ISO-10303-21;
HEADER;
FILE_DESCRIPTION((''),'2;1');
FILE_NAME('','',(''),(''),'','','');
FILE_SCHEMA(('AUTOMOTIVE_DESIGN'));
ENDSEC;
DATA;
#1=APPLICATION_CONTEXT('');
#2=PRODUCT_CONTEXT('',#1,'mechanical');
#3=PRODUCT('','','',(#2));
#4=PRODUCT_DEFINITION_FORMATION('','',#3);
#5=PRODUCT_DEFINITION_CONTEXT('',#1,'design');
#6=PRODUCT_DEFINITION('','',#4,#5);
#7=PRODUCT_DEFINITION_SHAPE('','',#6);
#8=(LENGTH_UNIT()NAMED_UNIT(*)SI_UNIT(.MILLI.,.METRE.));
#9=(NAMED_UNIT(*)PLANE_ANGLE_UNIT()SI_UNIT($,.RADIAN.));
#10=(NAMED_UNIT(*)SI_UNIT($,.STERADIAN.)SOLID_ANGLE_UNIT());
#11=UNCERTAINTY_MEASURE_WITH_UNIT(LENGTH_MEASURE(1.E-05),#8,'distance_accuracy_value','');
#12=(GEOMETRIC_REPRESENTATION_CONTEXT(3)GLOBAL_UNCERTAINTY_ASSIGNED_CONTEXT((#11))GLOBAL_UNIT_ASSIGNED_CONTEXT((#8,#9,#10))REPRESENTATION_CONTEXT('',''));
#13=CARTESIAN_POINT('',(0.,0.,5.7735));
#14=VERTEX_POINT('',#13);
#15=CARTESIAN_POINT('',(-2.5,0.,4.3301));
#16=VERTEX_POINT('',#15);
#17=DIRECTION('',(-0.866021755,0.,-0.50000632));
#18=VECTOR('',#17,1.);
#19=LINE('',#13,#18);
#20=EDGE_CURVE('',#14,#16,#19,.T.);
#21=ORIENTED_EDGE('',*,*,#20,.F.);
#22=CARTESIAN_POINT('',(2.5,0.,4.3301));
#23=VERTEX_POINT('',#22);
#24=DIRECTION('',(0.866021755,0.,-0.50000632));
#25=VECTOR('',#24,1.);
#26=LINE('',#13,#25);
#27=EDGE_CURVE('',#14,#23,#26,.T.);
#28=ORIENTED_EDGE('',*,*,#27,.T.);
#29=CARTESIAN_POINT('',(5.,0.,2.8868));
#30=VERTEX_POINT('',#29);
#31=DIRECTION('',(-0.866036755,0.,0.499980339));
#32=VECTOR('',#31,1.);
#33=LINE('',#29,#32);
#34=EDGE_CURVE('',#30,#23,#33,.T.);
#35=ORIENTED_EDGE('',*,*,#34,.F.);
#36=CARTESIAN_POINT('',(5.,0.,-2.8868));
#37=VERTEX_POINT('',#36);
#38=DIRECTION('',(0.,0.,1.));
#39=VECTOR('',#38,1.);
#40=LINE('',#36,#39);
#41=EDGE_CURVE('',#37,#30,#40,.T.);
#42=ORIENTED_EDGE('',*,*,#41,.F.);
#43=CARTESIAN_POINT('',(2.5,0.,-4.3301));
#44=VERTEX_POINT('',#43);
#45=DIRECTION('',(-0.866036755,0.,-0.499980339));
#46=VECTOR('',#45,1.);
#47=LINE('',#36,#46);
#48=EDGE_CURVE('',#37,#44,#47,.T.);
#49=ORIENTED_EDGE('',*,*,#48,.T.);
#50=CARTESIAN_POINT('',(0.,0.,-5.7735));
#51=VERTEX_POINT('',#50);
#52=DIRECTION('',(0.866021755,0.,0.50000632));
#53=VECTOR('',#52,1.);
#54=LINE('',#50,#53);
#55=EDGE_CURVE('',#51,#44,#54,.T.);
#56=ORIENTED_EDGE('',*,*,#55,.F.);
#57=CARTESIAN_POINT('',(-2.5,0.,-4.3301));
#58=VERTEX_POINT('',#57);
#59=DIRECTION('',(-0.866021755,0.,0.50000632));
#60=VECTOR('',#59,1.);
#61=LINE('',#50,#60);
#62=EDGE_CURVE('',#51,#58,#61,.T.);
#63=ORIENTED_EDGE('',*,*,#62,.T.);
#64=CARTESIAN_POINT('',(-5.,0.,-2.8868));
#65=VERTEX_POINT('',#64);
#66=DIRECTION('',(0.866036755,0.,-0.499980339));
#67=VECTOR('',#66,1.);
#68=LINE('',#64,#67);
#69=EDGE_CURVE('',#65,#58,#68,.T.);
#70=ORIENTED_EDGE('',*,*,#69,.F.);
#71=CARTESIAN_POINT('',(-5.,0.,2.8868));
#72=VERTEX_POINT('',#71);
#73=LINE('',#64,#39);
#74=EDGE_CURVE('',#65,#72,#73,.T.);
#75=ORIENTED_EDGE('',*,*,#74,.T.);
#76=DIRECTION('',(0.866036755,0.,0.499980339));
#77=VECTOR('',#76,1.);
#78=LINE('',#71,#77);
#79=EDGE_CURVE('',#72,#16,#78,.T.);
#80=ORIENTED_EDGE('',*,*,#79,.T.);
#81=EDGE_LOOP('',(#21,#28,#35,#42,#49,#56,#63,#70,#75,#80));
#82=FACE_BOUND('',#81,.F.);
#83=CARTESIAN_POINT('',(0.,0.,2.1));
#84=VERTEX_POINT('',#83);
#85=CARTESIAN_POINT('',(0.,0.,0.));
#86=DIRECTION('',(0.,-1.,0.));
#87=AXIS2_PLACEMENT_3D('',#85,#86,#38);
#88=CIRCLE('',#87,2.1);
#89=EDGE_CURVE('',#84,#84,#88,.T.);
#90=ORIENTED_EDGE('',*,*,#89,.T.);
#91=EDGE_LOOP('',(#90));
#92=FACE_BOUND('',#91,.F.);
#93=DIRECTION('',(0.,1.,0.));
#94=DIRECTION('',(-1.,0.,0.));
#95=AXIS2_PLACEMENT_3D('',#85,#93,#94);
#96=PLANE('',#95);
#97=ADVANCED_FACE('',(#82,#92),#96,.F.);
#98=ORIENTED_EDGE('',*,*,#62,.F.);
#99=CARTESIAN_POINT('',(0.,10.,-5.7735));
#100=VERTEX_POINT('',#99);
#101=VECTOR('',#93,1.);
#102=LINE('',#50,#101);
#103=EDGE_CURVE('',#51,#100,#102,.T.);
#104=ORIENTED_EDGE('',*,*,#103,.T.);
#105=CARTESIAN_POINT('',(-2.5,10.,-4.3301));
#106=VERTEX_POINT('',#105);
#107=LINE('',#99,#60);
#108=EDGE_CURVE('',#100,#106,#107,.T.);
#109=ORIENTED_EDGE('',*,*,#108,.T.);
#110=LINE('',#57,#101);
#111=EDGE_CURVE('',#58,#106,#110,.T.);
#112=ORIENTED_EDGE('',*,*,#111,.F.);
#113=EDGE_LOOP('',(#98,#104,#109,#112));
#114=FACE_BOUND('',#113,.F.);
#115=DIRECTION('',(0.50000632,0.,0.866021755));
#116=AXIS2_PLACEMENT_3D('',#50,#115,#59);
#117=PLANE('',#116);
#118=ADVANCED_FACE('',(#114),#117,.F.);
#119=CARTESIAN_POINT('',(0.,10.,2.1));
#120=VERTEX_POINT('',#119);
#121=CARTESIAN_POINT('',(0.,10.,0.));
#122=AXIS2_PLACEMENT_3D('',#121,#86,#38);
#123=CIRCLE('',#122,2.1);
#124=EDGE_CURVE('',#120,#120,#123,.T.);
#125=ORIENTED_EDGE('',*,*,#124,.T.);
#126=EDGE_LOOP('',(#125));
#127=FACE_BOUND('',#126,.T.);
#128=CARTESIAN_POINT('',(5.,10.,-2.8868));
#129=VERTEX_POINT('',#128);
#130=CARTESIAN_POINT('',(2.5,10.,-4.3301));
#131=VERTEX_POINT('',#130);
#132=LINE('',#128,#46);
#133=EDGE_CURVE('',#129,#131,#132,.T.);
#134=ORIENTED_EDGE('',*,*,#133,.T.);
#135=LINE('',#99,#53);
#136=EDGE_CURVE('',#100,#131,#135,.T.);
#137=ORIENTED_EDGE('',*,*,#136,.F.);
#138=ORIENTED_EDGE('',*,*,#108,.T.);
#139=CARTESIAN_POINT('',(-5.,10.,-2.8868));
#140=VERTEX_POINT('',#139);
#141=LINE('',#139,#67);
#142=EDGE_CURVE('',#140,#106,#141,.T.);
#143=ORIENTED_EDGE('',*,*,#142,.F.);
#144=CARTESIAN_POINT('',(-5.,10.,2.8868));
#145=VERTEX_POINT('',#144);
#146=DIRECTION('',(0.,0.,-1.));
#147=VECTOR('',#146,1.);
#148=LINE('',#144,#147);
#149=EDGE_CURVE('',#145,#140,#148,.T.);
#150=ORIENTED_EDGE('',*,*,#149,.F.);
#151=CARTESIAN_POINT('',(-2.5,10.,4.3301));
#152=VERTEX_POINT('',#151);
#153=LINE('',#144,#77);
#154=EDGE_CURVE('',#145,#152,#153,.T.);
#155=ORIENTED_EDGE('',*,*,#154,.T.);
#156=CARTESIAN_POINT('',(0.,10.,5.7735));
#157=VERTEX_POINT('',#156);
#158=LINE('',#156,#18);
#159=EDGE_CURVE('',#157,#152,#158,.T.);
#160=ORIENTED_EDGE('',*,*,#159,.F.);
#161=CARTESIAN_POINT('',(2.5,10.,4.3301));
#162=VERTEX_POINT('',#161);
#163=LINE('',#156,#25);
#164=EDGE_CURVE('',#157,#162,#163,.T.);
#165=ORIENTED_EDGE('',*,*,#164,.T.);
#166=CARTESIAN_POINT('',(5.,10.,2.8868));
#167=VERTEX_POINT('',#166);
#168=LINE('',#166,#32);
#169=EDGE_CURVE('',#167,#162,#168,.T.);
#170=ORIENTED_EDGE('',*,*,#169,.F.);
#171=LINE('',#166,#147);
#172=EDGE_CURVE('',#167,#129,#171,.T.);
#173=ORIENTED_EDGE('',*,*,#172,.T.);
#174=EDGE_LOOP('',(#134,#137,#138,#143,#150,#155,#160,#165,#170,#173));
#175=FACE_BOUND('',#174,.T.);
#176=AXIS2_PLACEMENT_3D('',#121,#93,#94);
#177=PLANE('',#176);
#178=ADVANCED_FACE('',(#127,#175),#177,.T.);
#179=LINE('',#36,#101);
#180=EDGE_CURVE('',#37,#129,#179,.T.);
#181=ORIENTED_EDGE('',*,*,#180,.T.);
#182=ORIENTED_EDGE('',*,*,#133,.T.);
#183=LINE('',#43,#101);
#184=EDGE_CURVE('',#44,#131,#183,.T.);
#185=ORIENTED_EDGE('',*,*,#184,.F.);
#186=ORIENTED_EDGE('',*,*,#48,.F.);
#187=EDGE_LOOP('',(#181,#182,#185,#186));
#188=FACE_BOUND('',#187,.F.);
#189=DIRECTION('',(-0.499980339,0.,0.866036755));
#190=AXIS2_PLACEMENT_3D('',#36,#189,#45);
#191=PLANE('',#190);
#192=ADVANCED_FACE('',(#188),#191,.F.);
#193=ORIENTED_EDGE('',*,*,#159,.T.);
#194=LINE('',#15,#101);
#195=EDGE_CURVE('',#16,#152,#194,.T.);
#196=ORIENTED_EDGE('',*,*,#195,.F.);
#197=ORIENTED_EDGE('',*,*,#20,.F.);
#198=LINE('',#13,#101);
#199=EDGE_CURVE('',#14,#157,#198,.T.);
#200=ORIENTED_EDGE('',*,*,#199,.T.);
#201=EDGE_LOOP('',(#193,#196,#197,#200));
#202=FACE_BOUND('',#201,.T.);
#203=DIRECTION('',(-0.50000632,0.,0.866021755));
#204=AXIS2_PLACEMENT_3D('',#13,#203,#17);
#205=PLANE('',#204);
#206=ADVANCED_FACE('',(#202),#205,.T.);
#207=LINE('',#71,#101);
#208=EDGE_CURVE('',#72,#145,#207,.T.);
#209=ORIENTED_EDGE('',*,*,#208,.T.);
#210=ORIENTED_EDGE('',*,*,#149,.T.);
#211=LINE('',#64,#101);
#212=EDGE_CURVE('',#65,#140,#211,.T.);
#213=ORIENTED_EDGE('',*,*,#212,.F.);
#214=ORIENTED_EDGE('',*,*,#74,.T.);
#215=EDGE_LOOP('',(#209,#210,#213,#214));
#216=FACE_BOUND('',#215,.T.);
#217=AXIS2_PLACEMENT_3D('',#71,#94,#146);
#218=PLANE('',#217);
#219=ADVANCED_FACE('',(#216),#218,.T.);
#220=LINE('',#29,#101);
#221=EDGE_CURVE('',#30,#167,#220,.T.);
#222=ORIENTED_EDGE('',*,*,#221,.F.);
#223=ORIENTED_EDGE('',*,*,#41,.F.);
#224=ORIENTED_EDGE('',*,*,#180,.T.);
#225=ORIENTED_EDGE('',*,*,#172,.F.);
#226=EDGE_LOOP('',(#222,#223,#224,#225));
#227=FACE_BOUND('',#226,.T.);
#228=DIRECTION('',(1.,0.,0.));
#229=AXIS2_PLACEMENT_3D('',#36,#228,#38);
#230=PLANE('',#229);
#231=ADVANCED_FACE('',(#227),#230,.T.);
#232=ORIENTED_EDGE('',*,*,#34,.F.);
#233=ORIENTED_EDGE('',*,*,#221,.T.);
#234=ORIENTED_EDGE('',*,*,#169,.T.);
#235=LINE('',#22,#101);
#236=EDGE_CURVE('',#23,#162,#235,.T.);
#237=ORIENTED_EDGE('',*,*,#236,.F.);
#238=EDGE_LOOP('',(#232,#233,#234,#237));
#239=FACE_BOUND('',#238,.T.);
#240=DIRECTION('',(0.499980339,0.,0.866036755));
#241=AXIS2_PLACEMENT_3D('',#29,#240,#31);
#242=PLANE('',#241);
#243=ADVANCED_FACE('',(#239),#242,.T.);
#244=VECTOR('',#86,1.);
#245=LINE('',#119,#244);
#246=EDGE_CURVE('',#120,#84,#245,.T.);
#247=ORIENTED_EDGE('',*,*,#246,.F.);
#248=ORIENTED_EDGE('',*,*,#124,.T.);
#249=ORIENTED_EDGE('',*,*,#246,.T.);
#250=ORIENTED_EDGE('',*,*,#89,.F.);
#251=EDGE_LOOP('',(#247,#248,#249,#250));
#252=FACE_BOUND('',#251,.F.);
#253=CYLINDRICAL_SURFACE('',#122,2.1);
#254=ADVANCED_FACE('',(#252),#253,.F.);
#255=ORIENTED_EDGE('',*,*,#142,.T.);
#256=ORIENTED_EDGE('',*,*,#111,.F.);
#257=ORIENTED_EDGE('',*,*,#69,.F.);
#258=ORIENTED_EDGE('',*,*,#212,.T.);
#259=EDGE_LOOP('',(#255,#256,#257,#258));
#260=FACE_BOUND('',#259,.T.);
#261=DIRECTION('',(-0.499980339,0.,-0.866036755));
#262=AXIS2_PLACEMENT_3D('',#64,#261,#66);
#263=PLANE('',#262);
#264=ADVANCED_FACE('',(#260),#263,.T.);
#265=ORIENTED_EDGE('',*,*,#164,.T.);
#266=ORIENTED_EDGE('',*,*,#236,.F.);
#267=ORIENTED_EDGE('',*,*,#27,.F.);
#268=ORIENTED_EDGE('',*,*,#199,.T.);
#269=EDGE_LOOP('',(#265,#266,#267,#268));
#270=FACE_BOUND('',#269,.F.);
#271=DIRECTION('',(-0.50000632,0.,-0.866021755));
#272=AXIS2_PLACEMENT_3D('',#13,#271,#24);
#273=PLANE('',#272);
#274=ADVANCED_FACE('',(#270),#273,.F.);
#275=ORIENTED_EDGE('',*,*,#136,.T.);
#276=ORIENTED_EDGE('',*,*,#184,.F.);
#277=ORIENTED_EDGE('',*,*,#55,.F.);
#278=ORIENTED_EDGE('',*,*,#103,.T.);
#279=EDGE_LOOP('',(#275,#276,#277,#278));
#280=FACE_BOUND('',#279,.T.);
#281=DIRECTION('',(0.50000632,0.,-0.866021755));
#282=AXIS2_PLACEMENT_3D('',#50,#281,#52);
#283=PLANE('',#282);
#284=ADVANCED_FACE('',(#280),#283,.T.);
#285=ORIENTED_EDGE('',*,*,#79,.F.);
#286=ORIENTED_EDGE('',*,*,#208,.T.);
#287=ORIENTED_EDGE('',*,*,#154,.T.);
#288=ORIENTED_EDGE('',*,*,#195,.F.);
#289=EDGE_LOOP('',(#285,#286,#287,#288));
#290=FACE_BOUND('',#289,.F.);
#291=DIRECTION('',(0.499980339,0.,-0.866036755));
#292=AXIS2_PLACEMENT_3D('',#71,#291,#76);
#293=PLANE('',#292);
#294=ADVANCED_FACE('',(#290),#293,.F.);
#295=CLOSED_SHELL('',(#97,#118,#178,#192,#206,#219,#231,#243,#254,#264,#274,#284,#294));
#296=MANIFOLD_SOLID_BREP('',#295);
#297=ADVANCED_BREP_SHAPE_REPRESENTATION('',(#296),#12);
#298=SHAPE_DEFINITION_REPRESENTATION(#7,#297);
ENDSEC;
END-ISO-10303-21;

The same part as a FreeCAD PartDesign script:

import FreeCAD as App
import Part
import Sketcher
Q = App.Units.Quantity


def add_polygon(sketch, points):
    """Adds a closed chain of lines whose ends are joined by coincident constraints."""
    first, n = sketch.GeometryCount, len(points)
    for a, b in zip(points, points[1:] + points[:1]):
        sketch.addGeometry(Part.LineSegment(App.Vector(*a, 0), App.Vector(*b, 0)), False)
    for i in range(n):
        sketch.addConstraint(Sketcher.Constraint("Coincident", first + i, 2, first + (i + 1) % n, 1))

doc = App.newDocument("Part")
body = doc.addObject("PartDesign::Body", "Body")

# Sketch on XZ plane
sketch1 = body.newObject("Sketcher::SketchObject", "Sketch")
sketch1.AttachmentSupport = (doc.getObject("XZ_Plane"), [""])
sketch1.MapMode = "FlatFace"
add_polygon(sketch1, [(-5, 2.9), (-2.5, 4.3), (0, 5.8), (2.5, 4.3), (5, 2.9), (5, -2.9), (2.5, -4.3), (0, -5.8), (-2.5, -4.3), (-5, -2.9)])  # lines 0-9
sketch1.addConstraint([
    Sketcher.Constraint("Vertical", 4),
    Sketcher.Constraint("Vertical", 9),
    Sketcher.Constraint("Symmetric", 0, 2, 5, 2, -1, 1),
    Sketcher.Constraint("Symmetric", 1, 2, 6, 2, -1, 1),
    Sketcher.Constraint("Symmetric", 2, 2, 7, 2, -1, 1),
    Sketcher.Constraint("Symmetric", 3, 2, 8, 2, -1, 1),
    Sketcher.Constraint("Symmetric", 0, 2, 2, 2, -2),
    Sketcher.Constraint("PointOnObject", 1, 2, -2),
    Sketcher.Constraint("Parallel", 0, 1),
    Sketcher.Constraint("Parallel", 2, 3),
    Sketcher.Constraint("Parallel", 1, 5),
    Sketcher.Constraint("Equal", 0, 1),
    Sketcher.Constraint("Angle", 1, Q("30.0004 deg")),
    Sketcher.Constraint("DistanceX", -1, 1, 3, 2, Q("5 mm")),
    Sketcher.Constraint("DistanceY", -1, 1, 0, 2, Q("4.33 mm")),
])
pad1 = body.newObject("PartDesign::Pad", "Pad")
pad1.Profile = sketch1
pad1.Length = 10
pad1.Reversed = True

# Sketch on XZ plane
sketch2 = body.newObject("Sketcher::SketchObject", "Sketch001")
sketch2.AttachmentSupport = (doc.getObject("XZ_Plane"), [""])
sketch2.MapMode = "FlatFace"
sketch2.AttachmentOffset = App.Placement(App.Vector(0, 0, -10), App.Rotation())
sketch2.addGeometry(Part.Circle(App.Vector(0, 0, 0), App.Vector(0, 0, 1), 2.1), False)
sketch2.addConstraint([
    Sketcher.Constraint("Coincident", 0, 3, -1, 1),
    Sketcher.Constraint("Diameter", 0, Q("4.2 mm")),
])
doc.recompute()
hole = body.newObject("PartDesign::Hole", "Hole")
hole.Profile = sketch2
hole.ThreadType = "None"
hole.Diameter = 4.2
hole.DepthType = "ThroughAll"
hole.Reversed = True

doc.recompute()
